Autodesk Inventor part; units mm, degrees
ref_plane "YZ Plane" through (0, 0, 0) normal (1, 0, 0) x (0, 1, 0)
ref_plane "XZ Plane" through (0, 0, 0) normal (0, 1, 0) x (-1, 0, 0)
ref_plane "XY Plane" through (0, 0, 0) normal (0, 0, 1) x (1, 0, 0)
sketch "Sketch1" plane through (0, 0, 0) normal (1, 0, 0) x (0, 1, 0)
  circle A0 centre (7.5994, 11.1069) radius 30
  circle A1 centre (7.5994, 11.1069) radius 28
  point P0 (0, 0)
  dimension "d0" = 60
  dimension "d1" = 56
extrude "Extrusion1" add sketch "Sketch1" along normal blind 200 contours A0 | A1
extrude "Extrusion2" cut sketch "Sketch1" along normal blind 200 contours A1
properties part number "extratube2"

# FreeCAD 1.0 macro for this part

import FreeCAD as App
import Part
import Sketcher
from FreeCAD import Vector
Q = App.Units.Quantity

doc = App.newDocument("Part")
body = doc.addObject("PartDesign::Body", "Body")

sketch1 = body.newObject("Sketcher::SketchObject", "Sketch")
sketch1.AttachmentSupport = (doc.getObject("YZ_Plane"), [""])
sketch1.MapMode = "FlatFace"
sketch1.addGeometry(Part.Circle(Vector(8, 11, 0), Vector(0, 0, 1), 30), False)
sketch1.addConstraint([
    Sketcher.Constraint("Diameter", 0, Q("60 mm")),
    Sketcher.Constraint("DistanceY", -1, 1, 0, 3, Q("11.107 mm")),
    Sketcher.Constraint("DistanceX", -1, 1, 0, 3, Q("7.5994 mm")),
])
pad1 = body.newObject("PartDesign::Pad", "Pad")
pad1.Profile = sketch1
pad1.Length = 200

sketch2 = body.newObject("Sketcher::SketchObject", "Sketch001")
sketch2.AttachmentSupport = (doc.getObject("YZ_Plane"), [""])
sketch2.MapMode = "FlatFace"
sketch2.addGeometry(Part.Circle(Vector(8, 11, 0), Vector(0, 0, 1), 28), False)
sketch2.addConstraint([
    Sketcher.Constraint("Diameter", 0, Q("56 mm")),
    Sketcher.Constraint("DistanceY", -1, 1, 0, 3, Q("11.107 mm")),
    Sketcher.Constraint("DistanceX", -1, 1, 0, 3, Q("7.5994 mm")),
])
pocket1 = body.newObject("PartDesign::Pocket", "Pocket")
pocket1.Profile = sketch2
pocket1.Length = 200
pocket1.Reversed = True

doc.recompute()
